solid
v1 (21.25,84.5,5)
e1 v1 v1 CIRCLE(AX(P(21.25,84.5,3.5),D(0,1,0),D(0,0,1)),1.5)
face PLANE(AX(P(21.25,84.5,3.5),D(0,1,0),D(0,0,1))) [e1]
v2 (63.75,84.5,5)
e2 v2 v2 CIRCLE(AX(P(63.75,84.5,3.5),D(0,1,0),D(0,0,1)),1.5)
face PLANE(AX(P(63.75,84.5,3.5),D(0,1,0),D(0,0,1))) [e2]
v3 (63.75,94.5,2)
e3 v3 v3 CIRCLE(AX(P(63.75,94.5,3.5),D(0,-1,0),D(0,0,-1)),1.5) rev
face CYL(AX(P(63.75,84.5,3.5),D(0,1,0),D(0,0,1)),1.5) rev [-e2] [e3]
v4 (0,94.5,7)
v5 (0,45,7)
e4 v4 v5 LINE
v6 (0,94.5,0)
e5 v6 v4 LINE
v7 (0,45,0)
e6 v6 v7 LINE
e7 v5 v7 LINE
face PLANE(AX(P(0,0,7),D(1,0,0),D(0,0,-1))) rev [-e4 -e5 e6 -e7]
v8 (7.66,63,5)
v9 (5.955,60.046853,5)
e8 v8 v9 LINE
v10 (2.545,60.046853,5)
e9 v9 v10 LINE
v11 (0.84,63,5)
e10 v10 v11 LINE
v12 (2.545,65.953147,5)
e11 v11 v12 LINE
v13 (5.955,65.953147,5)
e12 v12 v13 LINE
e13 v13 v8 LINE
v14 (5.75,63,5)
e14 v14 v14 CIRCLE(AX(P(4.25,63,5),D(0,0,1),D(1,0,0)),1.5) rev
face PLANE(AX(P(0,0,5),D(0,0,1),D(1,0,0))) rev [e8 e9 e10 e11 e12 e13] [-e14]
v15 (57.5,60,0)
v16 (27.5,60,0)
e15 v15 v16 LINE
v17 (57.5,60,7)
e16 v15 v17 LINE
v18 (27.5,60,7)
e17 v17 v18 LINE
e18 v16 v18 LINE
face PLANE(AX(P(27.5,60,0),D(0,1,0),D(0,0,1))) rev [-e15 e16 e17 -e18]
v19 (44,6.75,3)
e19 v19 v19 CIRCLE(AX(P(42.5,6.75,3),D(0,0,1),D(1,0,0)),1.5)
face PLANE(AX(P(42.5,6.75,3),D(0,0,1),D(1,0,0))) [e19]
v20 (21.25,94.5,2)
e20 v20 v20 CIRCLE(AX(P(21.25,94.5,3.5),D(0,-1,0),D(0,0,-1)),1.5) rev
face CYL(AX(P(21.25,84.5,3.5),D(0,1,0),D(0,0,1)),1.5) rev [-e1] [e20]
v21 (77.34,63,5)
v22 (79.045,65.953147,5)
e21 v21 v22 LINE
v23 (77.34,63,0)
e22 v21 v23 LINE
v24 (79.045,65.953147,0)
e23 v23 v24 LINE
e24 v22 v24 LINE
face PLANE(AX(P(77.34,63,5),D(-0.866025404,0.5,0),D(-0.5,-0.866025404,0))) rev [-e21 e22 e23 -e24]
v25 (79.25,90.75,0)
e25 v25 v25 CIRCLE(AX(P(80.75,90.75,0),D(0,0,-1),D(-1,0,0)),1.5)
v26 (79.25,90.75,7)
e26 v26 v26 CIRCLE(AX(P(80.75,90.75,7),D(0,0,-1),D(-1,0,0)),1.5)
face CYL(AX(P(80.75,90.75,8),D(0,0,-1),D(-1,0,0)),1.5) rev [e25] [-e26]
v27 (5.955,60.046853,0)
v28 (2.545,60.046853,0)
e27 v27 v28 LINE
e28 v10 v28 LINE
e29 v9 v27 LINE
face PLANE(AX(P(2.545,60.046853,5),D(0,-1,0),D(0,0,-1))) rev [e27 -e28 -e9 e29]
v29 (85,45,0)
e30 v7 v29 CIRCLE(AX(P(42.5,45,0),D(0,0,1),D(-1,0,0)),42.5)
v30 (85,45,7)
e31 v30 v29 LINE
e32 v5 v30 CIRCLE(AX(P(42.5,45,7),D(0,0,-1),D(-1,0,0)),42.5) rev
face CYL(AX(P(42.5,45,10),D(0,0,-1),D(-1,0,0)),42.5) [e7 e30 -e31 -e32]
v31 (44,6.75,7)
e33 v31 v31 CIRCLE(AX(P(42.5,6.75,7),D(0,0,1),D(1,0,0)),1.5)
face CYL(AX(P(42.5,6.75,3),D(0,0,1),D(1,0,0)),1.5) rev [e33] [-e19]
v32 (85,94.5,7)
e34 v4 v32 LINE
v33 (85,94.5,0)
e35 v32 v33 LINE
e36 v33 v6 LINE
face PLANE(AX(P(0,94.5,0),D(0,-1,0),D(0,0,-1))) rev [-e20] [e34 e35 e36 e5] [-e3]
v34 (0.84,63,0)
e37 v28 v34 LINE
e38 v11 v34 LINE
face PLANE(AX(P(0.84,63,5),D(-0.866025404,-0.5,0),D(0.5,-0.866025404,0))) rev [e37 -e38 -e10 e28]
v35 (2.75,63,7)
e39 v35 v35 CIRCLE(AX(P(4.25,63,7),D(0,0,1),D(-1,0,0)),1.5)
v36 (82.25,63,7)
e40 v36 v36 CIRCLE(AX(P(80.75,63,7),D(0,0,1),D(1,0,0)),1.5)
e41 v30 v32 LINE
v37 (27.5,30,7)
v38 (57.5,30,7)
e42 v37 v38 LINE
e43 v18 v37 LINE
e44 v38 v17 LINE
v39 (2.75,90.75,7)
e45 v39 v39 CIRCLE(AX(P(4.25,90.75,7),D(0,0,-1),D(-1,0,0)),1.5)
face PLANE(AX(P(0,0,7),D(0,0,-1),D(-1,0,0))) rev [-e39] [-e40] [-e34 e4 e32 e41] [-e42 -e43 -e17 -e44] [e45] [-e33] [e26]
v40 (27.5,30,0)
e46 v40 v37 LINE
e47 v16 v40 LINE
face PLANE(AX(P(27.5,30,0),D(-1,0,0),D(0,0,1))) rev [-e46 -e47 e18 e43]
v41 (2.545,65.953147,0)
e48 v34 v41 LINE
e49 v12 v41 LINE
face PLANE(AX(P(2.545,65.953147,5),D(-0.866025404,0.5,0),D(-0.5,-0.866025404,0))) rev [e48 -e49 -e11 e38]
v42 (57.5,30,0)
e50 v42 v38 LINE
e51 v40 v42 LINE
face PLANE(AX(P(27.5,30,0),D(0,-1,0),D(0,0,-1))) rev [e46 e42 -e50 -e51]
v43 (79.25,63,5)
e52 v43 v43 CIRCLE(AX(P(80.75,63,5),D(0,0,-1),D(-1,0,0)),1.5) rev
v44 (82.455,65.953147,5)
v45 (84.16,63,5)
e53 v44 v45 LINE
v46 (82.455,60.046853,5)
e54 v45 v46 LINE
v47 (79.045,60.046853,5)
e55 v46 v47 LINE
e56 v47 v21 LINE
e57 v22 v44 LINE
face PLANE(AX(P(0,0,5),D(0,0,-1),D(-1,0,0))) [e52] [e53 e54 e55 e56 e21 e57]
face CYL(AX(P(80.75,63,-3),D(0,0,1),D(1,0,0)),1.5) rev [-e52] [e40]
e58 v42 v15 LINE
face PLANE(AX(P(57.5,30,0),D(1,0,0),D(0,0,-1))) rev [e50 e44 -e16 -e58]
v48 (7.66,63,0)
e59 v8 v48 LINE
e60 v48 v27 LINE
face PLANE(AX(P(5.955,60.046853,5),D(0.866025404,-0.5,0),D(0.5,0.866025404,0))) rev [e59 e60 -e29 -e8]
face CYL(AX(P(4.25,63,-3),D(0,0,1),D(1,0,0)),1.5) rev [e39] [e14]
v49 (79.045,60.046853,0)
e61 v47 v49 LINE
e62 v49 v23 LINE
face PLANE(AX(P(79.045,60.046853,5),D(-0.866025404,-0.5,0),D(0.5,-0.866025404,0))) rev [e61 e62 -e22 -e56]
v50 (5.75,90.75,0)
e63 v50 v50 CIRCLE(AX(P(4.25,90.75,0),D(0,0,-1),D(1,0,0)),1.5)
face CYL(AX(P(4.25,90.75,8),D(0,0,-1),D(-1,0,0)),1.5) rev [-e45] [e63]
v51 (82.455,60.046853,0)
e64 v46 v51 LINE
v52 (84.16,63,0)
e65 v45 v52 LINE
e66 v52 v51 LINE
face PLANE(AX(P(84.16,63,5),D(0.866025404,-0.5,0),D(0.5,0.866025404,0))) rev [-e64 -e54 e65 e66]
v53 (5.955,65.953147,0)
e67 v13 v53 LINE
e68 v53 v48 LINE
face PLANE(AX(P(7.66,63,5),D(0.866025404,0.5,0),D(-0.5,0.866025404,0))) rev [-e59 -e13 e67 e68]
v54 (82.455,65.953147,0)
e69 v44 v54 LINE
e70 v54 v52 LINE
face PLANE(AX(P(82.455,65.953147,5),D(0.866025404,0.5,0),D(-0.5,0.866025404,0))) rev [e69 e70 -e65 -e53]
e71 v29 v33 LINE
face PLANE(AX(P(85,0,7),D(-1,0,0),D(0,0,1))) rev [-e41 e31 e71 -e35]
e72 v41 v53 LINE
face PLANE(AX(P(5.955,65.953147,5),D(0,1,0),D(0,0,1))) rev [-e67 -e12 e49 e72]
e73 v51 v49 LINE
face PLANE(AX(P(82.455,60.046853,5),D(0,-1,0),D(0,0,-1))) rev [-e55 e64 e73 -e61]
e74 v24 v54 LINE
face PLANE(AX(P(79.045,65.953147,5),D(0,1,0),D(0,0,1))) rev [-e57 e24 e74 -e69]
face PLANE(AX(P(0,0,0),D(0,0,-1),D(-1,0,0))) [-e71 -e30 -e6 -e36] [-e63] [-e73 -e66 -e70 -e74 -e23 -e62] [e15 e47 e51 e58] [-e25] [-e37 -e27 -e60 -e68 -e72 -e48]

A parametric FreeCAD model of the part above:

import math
import FreeCAD as App
import Part
import Sketcher
Q = App.Units.Quantity

doc = App.newDocument("Part")
params = doc.addObject("Spreadsheet::Sheet", "Params")
for row, (alias, value) in enumerate([
    ("sketch1_width", "85 mm"),
    ("sketch1_height", "95 mm"),
    ("pad1_length", "7 mm"),
    ("sketch2_width", "30 mm"),
    ("pocket1_length", "7 mm"),
    ("sketch3_diameter", "3 mm"),
    ("pocket2_length", "10.5 mm"),
    ("sketch4_diameter", "3 mm"),
    ("pocket3_length", "8 mm"),
    ("sketch5_radius", "42.5 mm"),
    ("sketch5_height", "45 mm"),
    ("pocket4_length", "10 mm"),
    ("sketch6_diameter", "3 mm"),
    ("pocket5_length", "10 mm"),
    ("sketch7_width", "3.41 mm"),
    ("sketch7_length", "3.41 mm"),
    ("pocket6_length", "5 mm"),
    ("sketch8_diameter", "3 mm"),
    ("pocket7_length", "4 mm"),
    ("sketch9_width", "85 mm"),
    ("sketch9_height", "7 mm"),
    ("pocket8_length", "0.5 mm"),
], start=1):
    params.set(f"A{row}", alias)
    params.set(f"B{row}", "=" + value)
    params.setAlias(f"B{row}", alias)

body = doc.addObject("PartDesign::Body", "Body")

sketch1 = body.newObject("Sketcher::SketchObject", "Sketch")
sketch1.AttachmentSupport = (doc.getObject("XY_Plane"), [""])
sketch1.MapMode = "FlatFace"
sketch1.addGeometry([
    Part.LineSegment(App.Vector(0, 95, 0), App.Vector(0, 0, 0)),
    Part.LineSegment(App.Vector(0, 0, 0), App.Vector(85, 0, 0)),
    Part.LineSegment(App.Vector(85, 0, 0), App.Vector(85, 95, 0)),
    Part.LineSegment(App.Vector(85, 95, 0), App.Vector(0, 95, 0)),
], False)
sketch1.addConstraint([
    Sketcher.Constraint("Coincident", 0, 2, 1, 1),
    Sketcher.Constraint("Coincident", 1, 2, 2, 1),
    Sketcher.Constraint("Coincident", 2, 2, 3, 1),
    Sketcher.Constraint("Coincident", 3, 2, 0, 1),
    Sketcher.Constraint("Vertical", 0),
    Sketcher.Constraint("Horizontal", 1),
    Sketcher.Constraint("Vertical", 2),
    Sketcher.Constraint("Horizontal", 3),
    Sketcher.Constraint("Coincident", 0, 2, -1, 1),
    Sketcher.Constraint("DistanceX", 1, 1, 1, 2, 85.0),
    Sketcher.Constraint("DistanceY", 0, 2, 0, 1, 95.0),
])
sketch1.setExpression("Constraints[9]", "Params.sketch1_width")
sketch1.setExpression("Constraints[10]", "Params.sketch1_height")
pad1 = body.newObject("PartDesign::Pad", "Pad")
pad1.Profile = sketch1
pad1.setExpression("Length", "Params.pad1_length")

sketch2 = body.newObject("Sketcher::SketchObject", "Sketch001")
sketch2.AttachmentSupport = (doc.getObject("XY_Plane"), [""])
sketch2.MapMode = "FlatFace"
sketch2.AttachmentOffset = App.Placement(App.Vector(0, 0, 7), App.Rotation())
sketch2.addGeometry([
    Part.LineSegment(App.Vector(27.5, 60, 0), App.Vector(27.5, 30, 0)),
    Part.LineSegment(App.Vector(27.5, 30, 0), App.Vector(57.5, 30, 0)),
    Part.LineSegment(App.Vector(57.5, 30, 0), App.Vector(57.5, 60, 0)),
    Part.LineSegment(App.Vector(57.5, 60, 0), App.Vector(27.5, 60, 0)),
], False)
sketch2.addConstraint([
    Sketcher.Constraint("Coincident", 0, 2, 1, 1),
    Sketcher.Constraint("Coincident", 1, 2, 2, 1),
    Sketcher.Constraint("Coincident", 2, 2, 3, 1),
    Sketcher.Constraint("Coincident", 3, 2, 0, 1),
    Sketcher.Constraint("Vertical", 0),
    Sketcher.Constraint("Horizontal", 1),
    Sketcher.Constraint("Vertical", 2),
    Sketcher.Constraint("Horizontal", 3),
    Sketcher.Constraint("Equal", 3, 0),
    Sketcher.Constraint("DistanceX", 1, 1, 1, 2, 30.0),
    Sketcher.Constraint("DistanceY", -1, 1, 0, 2, 30.0),
    Sketcher.Constraint("DistanceX", -1, 1, 0, 2, 27.5),
])
sketch2.setExpression("Constraints[9]", "Params.sketch2_width")
pocket1 = body.newObject("PartDesign::Pocket", "Pocket")
pocket1.Profile = sketch2
pocket1.setExpression("Length", "Params.pocket1_length")

sketch3 = body.newObject("Sketcher::SketchObject", "Sketch002")
sketch3.AttachmentSupport = (doc.getObject("XZ_Plane"), [""])
sketch3.MapMode = "FlatFace"
sketch3.AttachmentOffset = App.Placement(App.Vector(0, 0, -95), App.Rotation())
sketch3.addGeometry([
    Part.Circle(App.Vector(21.25, 3.5, 0), App.Vector(0, 0, 1), 1.5),
    Part.Circle(App.Vector(63.75, 3.5, 0), App.Vector(0, 0, 1), 1.5),
], False)
sketch3.addConstraint([
    Sketcher.Constraint("Equal", 0, 1),
    Sketcher.Constraint("Horizontal", 0, 3, 1, 3),
    Sketcher.Constraint("Diameter", 0, 3.0),
    Sketcher.Constraint("DistanceY", -1, 1, 0, 3, 3.5),
    Sketcher.Constraint("DistanceX", 0, 3, 1, 3, 42.5),
    Sketcher.Constraint("DistanceX", -1, 1, 0, 3, 21.25),
])
sketch3.setExpression("Constraints[2]", "Params.sketch3_diameter")
pocket2 = body.newObject("PartDesign::Pocket", "Pocket001")
pocket2.Profile = sketch3
pocket2.setExpression("Length", "Params.pocket2_length")
pocket2.Reversed = True

sketch4 = body.newObject("Sketcher::SketchObject", "Sketch003")
sketch4.AttachmentSupport = (doc.getObject("XY_Plane"), [""])
sketch4.MapMode = "FlatFace"
sketch4.addGeometry([
    Part.Circle(App.Vector(80.75, 90.75, 0), App.Vector(0, 0, 1), 1.5),
    Part.Circle(App.Vector(4.25, 90.75, 0), App.Vector(0, 0, 1), 1.5),
    Part.Circle(App.Vector(4.45, 4.25, 0), App.Vector(0, 0, 1), 1.5),
    Part.Circle(App.Vector(80.75, 7.25, 0), App.Vector(0, 0, 1), 1.5),
], False)
sketch4.addConstraint([
    Sketcher.Constraint("Equal", 0, 1),
    Sketcher.Constraint("Equal", 1, 2),
    Sketcher.Constraint("Equal", 2, 3),
    Sketcher.Constraint("Horizontal", 0, 3, 1, 3),
    Sketcher.Constraint("Vertical", 0, 3, 3, 3),
    Sketcher.Constraint("Diameter", 0, 3.0),
    Sketcher.Constraint("DistanceY", 2, 3, 3, 3, 3.0),
    Sketcher.Constraint("DistanceX", 1, 3, 0, 3, 76.5),
    Sketcher.Constraint("DistanceX", 1, 3, 2, 3, 0.2),
    Sketcher.Constraint("DistanceY", 2, 3, 1, 3, 86.5),
    Sketcher.Constraint("DistanceX", -1, 1, 0, 3, 80.75),
    Sketcher.Constraint("DistanceY", -1, 1, 0, 3, 90.75),
])
sketch4.setExpression("Constraints[5]", "Params.sketch4_diameter")
pocket3 = body.newObject("PartDesign::Pocket", "Pocket002")
pocket3.Profile = sketch4
pocket3.setExpression("Length", "Params.pocket3_length")
pocket3.Reversed = True

sketch5 = body.newObject("Sketcher::SketchObject", "Sketch004")
sketch5.AttachmentSupport = (doc.getObject("XY_Plane"), [""])
sketch5.MapMode = "FlatFace"
sketch5.addGeometry([
    Part.LineSegment(App.Vector(85, 45, 0), App.Vector(85, 0, 0)),
    Part.LineSegment(App.Vector(85, 0, 0), App.Vector(0, 0, 0)),
    Part.LineSegment(App.Vector(0, 0, 0), App.Vector(0, 45, 0)),
    Part.ArcOfCircle(Part.Circle(App.Vector(42.5, 45, 0), App.Vector(0, 0, 1), 42.5), math.radians(180), math.radians(360)),
], False)
sketch5.addConstraint([
    Sketcher.Constraint("Coincident", 0, 2, 1, 1),
    Sketcher.Constraint("Coincident", 1, 2, 2, 1),
    Sketcher.Constraint("Tangent", 2, 2, 3, 1),
    Sketcher.Constraint("Tangent", 3, 2, 0, 1),
    Sketcher.Constraint("Vertical", 0),
    Sketcher.Constraint("Horizontal", 1),
    Sketcher.Constraint("Vertical", 2),
    Sketcher.Constraint("Coincident", 1, 2, -1, 1),
    Sketcher.Constraint("Radius", 3, 42.5),
    Sketcher.Constraint("DistanceY", 0, 2, 0, 1, 45.0),
])
sketch5.setExpression("Constraints[8]", "Params.sketch5_radius")
sketch5.setExpression("Constraints[9]", "Params.sketch5_height")
pocket4 = body.newObject("PartDesign::Pocket", "Pocket003")
pocket4.Profile = sketch5
pocket4.setExpression("Length", "Params.pocket4_length")
pocket4.Reversed = True

sketch6 = body.newObject("Sketcher::SketchObject", "Sketch005")
sketch6.AttachmentSupport = (doc.getObject("XY_Plane"), [""])
sketch6.MapMode = "FlatFace"
sketch6.AttachmentOffset = App.Placement(App.Vector(0, 0, 7), App.Rotation())
sketch6.addGeometry([
    Part.Circle(App.Vector(80.75, 63, 0), App.Vector(0, 0, 1), 1.5),
    Part.Circle(App.Vector(4.25, 63, 0), App.Vector(0, 0, 1), 1.5),
], False)
sketch6.addConstraint([
    Sketcher.Constraint("Equal", 0, 1),
    Sketcher.Constraint("Horizontal", 0, 3, 1, 3),
    Sketcher.Constraint("Diameter", 0, 3.0),
    Sketcher.Constraint("DistanceY", -1, 1, 0, 3, 63.0),
    Sketcher.Constraint("DistanceX", 1, 3, 0, 3, 76.5),
    Sketcher.Constraint("DistanceX", -1, 1, 0, 3, 80.75),
])
sketch6.setExpression("Constraints[2]", "Params.sketch6_diameter")
pocket5 = body.newObject("PartDesign::Pocket", "Pocket004")
pocket5.Profile = sketch6
pocket5.setExpression("Length", "Params.pocket5_length")

sketch7 = body.newObject("Sketcher::SketchObject", "Sketch006")
sketch7.AttachmentSupport = (doc.getObject("XY_Plane"), [""])
sketch7.MapMode = "FlatFace"
sketch7.addGeometry([
    Part.LineSegment(App.Vector(79.045, 65.953147, 0), App.Vector(82.455, 65.953147, 0)),
    Part.LineSegment(App.Vector(82.455, 65.953147, 0), App.Vector(84.16, 63, 0)),
    Part.LineSegment(App.Vector(84.16, 63, 0), App.Vector(82.455, 60.046853, 0)),
    Part.LineSegment(App.Vector(82.455, 60.046853, 0), App.Vector(79.045, 60.046853, 0)),
    Part.LineSegment(App.Vector(79.045, 60.046853, 0), App.Vector(77.34, 63, 0)),
    Part.LineSegment(App.Vector(77.34, 63, 0), App.Vector(79.045, 65.953147, 0)),
    Part.LineSegment(App.Vector(2.545, 60.046853, 0), App.Vector(0.84, 63, 0)),
    Part.LineSegment(App.Vector(0.84, 63, 0), App.Vector(2.545, 65.953147, 0)),
    Part.LineSegment(App.Vector(2.545, 65.953147, 0), App.Vector(5.955, 65.953147, 0)),
    Part.LineSegment(App.Vector(5.955, 65.953147, 0), App.Vector(7.66, 63, 0)),
    Part.LineSegment(App.Vector(7.66, 63, 0), App.Vector(5.955, 60.046853, 0)),
    Part.LineSegment(App.Vector(5.955, 60.046853, 0), App.Vector(2.545, 60.046853, 0)),
], False)
sketch7.addConstraint([
    Sketcher.Constraint("Coincident", 0, 2, 1, 1),
    Sketcher.Constraint("Coincident", 1, 2, 2, 1),
    Sketcher.Constraint("Coincident", 2, 2, 3, 1),
    Sketcher.Constraint("Coincident", 3, 2, 4, 1),
    Sketcher.Constraint("Coincident", 4, 2, 5, 1),
    Sketcher.Constraint("Coincident", 5, 2, 0, 1),
    Sketcher.Constraint("Coincident", 6, 2, 7, 1),
    Sketcher.Constraint("Coincident", 7, 2, 8, 1),
    Sketcher.Constraint("Coincident", 8, 2, 9, 1),
    Sketcher.Constraint("Coincident", 9, 2, 10, 1),
    Sketcher.Constraint("Coincident", 10, 2, 11, 1),
    Sketcher.Constraint("Coincident", 11, 2, 6, 1),
    Sketcher.Constraint("Horizontal", 0),
    Sketcher.Constraint("Horizontal", 3),
    Sketcher.Constraint("Horizontal", 8),
    Sketcher.Constraint("Horizontal", 11),
    Sketcher.Constraint("Parallel", 1, 4),
    Sketcher.Constraint("Parallel", 2, 5),
    Sketcher.Constraint("Parallel", 4, 6),
    Sketcher.Constraint("Parallel", 5, 7),
    Sketcher.Constraint("Parallel", 6, 9),
    Sketcher.Constraint("Parallel", 7, 10),
    Sketcher.Constraint("Horizontal", 1, 2, 4, 2),
    Sketcher.Constraint("Horizontal", 4, 2, 6, 2),
    Sketcher.Constraint("Horizontal", 5, 2, 7, 2),
    Sketcher.Constraint("Horizontal", 6, 2, 9, 2),
    Sketcher.Constraint("Horizontal", 3, 2, 10, 2),
    Sketcher.Constraint("Vertical", 0, 2, 2, 2),
    Sketcher.Constraint("Vertical", 3, 2, 5, 2),
    Sketcher.Constraint("Equal", 3, 8),
    Sketcher.Constraint("Angle", 1, Q("-60 deg")),
    Sketcher.Constraint("DistanceY", -1, 1, 1, 2, 63.0),
    Sketcher.Constraint("DistanceX", 0, 1, 0, 2, 3.41),
    Sketcher.Constraint("DistanceX", 6, 2, 4, 2, 76.5),
    Sketcher.Constraint("Distance", 1, 3.41),
    Sketcher.Constraint("DistanceX", -1, 1, 1, 2, 84.16),
])
sketch7.setExpression("Constraints[32]", "Params.sketch7_width")
sketch7.setExpression("Constraints[34]", "Params.sketch7_length")
pocket6 = body.newObject("PartDesign::Pocket", "Pocket005")
pocket6.Profile = sketch7
pocket6.setExpression("Length", "Params.pocket6_length")
pocket6.Reversed = True

sketch8 = body.newObject("Sketcher::SketchObject", "Sketch007")
sketch8.AttachmentSupport = (doc.getObject("XY_Plane"), [""])
sketch8.MapMode = "FlatFace"
sketch8.AttachmentOffset = App.Placement(App.Vector(0, 0, 7), App.Rotation())
sketch8.addGeometry(Part.Circle(App.Vector(42.5, 6.75, 0), App.Vector(0, 0, 1), 1.5), False)
sketch8.addConstraint([
    Sketcher.Constraint("Diameter", 0, 3.0),
    Sketcher.Constraint("DistanceX", -1, 1, 0, 3, 42.5),
    Sketcher.Constraint("DistanceY", -1, 1, 0, 3, 6.75),
])
sketch8.setExpression("Constraints[0]", "Params.sketch8_diameter")
pocket7 = body.newObject("PartDesign::Pocket", "Pocket006")
pocket7.Profile = sketch8
pocket7.setExpression("Length", "Params.pocket7_length")

sketch9 = body.newObject("Sketcher::SketchObject", "Sketch008")
sketch9.AttachmentSupport = (doc.getObject("XZ_Plane"), [""])
sketch9.MapMode = "FlatFace"
sketch9.AttachmentOffset = App.Placement(App.Vector(0, 0, -95), App.Rotation())
sketch9.addGeometry([
    Part.LineSegment(App.Vector(0, 0, 0), App.Vector(0, 7, 0)),
    Part.LineSegment(App.Vector(0, 7, 0), App.Vector(85, 7, 0)),
    Part.LineSegment(App.Vector(85, 7, 0), App.Vector(85, 0, 0)),
    Part.LineSegment(App.Vector(85, 0, 0), App.Vector(0, 0, 0)),
], False)
sketch9.addConstraint([
    Sketcher.Constraint("Coincident", 0, 2, 1, 1),
    Sketcher.Constraint("Coincident", 1, 2, 2, 1),
    Sketcher.Constraint("Coincident", 2, 2, 3, 1),
    Sketcher.Constraint("Coincident", 3, 2, 0, 1),
    Sketcher.Constraint("Vertical", 0),
    Sketcher.Constraint("Horizontal", 1),
    Sketcher.Constraint("Vertical", 2),
    Sketcher.Constraint("Horizontal", 3),
    Sketcher.Constraint("Coincident", 3, 2, -1, 1),
    Sketcher.Constraint("DistanceX", 1, 1, 1, 2, 85.0),
    Sketcher.Constraint("DistanceY", 0, 1, 0, 2, 7.0),
])
sketch9.setExpression("Constraints[9]", "Params.sketch9_width")
sketch9.setExpression("Constraints[10]", "Params.sketch9_height")
pocket8 = body.newObject("PartDesign::Pocket", "Pocket007")
pocket8.Profile = sketch9
pocket8.setExpression("Length", "Params.pocket8_length")
pocket8.Reversed = True

doc.recompute()
